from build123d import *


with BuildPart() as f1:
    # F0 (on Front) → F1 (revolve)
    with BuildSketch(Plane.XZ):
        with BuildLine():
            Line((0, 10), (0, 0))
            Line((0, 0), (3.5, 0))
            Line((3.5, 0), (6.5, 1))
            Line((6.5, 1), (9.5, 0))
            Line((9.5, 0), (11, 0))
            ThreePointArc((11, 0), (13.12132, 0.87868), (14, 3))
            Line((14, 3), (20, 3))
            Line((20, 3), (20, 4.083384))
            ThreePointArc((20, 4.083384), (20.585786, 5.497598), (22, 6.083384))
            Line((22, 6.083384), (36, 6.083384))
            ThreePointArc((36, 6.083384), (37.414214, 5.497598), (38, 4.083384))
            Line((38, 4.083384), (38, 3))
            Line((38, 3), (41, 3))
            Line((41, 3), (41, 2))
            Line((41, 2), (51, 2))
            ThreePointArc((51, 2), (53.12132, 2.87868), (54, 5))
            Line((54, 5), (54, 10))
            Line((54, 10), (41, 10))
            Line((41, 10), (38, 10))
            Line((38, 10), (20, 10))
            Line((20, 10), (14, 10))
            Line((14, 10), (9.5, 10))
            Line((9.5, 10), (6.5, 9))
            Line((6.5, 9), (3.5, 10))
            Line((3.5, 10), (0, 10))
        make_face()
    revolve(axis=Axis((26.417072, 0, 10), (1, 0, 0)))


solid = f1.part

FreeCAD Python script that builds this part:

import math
import FreeCAD as App
import Part
import Sketcher
from FreeCAD import Vector

doc = App.newDocument("Part")
body = doc.addObject("PartDesign::Body", "Body")

sketch1 = body.newObject("Sketcher::SketchObject", "Sketch")
sketch1.AttachmentSupport = (doc.getObject("XZ_Plane"), [""])
sketch1.MapMode = "FlatFace"
sketch1.addGeometry([
    Part.LineSegment(Vector(0, 10, 0), Vector(0, 0, 0)),
    Part.LineSegment(Vector(0, 0, 0), Vector(3.5, 0, 0)),
    Part.LineSegment(Vector(3.5, 0, 0), Vector(6.5, 1, 0)),
    Part.LineSegment(Vector(6.5, 1, 0), Vector(9.5, 0, 0)),
    Part.LineSegment(Vector(9.5, 0, 0), Vector(11, 0, 0)),
    Part.ArcOfCircle(Part.Circle(Vector(10.999999, 3.000001, 0), Vector(0, 0, 1), 3.000001), math.radians(-89.999978), math.radians(-0.000022)),
    Part.LineSegment(Vector(14, 3, 0), Vector(20, 3, 0)),
    Part.LineSegment(Vector(20, 3, 0), Vector(20, 4.083384, 0)),
    Part.ArcOfCircle(Part.Circle(Vector(21.999999, 4.083385, 0), Vector(0, 0, 1), 1.999999), math.radians(89.999957), math.radians(180.000043)),
    Part.LineSegment(Vector(22, 6.083384, 0), Vector(36, 6.083384, 0)),
    Part.ArcOfCircle(Part.Circle(Vector(36.000001, 4.083385, 0), Vector(0, 0, 1), 1.999999), math.radians(-0.000043), math.radians(90.000043)),
    Part.LineSegment(Vector(38, 4.083384, 0), Vector(38, 3, 0)),
    Part.LineSegment(Vector(38, 3, 0), Vector(41, 3, 0)),
    Part.LineSegment(Vector(41, 3, 0), Vector(41, 2, 0)),
    Part.LineSegment(Vector(41, 2, 0), Vector(51, 2, 0)),
    Part.ArcOfCircle(Part.Circle(Vector(50.999999, 5.000001, 0), Vector(0, 0, 1), 3.000001), math.radians(-89.999978), math.radians(-0.000022)),
    Part.LineSegment(Vector(54, 5, 0), Vector(54, 10, 0)),
    Part.LineSegment(Vector(54, 10, 0), Vector(9.5, 10, 0)),
    Part.LineSegment(Vector(9.5, 10, 0), Vector(6.5, 9, 0)),
    Part.LineSegment(Vector(6.5, 9, 0), Vector(3.5, 10, 0)),
    Part.LineSegment(Vector(3.5, 10, 0), Vector(0, 10, 0)),
], False)
sketch1.addGeometry(Part.LineSegment(Vector(0, 10, 0), Vector(54, 10, 0)), True)
sketch1.addConstraint([
    Sketcher.Constraint("Coincident", 0, 2, 1, 1),
    Sketcher.Constraint("Coincident", 1, 2, 2, 1),
    Sketcher.Constraint("Coincident", 2, 2, 3, 1),
    Sketcher.Constraint("Coincident", 3, 2, 4, 1),
    Sketcher.Constraint("Tangent", 4, 2, 5, 1),
    Sketcher.Constraint("Coincident", 5, 2, 6, 1),
    Sketcher.Constraint("Coincident", 6, 2, 7, 1),
    Sketcher.Constraint("Tangent", 7, 2, 8, 2),
    Sketcher.Constraint("Tangent", 8, 1, 9, 1),
    Sketcher.Constraint("Tangent", 9, 2, 10, 2),
    Sketcher.Constraint("Tangent", 10, 1, 11, 1),
    Sketcher.Constraint("Coincident", 11, 2, 12, 1),
    Sketcher.Constraint("Coincident", 12, 2, 13, 1),
    Sketcher.Constraint("Coincident", 13, 2, 14, 1),
    Sketcher.Constraint("Tangent", 14, 2, 15, 1),
    Sketcher.Constraint("Tangent", 15, 2, 16, 1),
    Sketcher.Constraint("Coincident", 16, 2, 17, 1),
    Sketcher.Constraint("Coincident", 17, 2, 18, 1),
    Sketcher.Constraint("Coincident", 18, 2, 19, 1),
    Sketcher.Constraint("Coincident", 19, 2, 20, 1),
    Sketcher.Constraint("Coincident", 20, 2, 0, 1),
    Sketcher.Constraint("Vertical", 0),
    Sketcher.Constraint("Horizontal", 1),
    Sketcher.Constraint("Horizontal", 4),
    Sketcher.Constraint("Horizontal", 6),
    Sketcher.Constraint("Vertical", 7),
    Sketcher.Constraint("Horizontal", 9),
    Sketcher.Constraint("Vertical", 11),
    Sketcher.Constraint("Horizontal", 12),
    Sketcher.Constraint("Vertical", 13),
    Sketcher.Constraint("Horizontal", 14),
    Sketcher.Constraint("Vertical", 16),
    Sketcher.Constraint("Horizontal", 17),
    Sketcher.Constraint("Horizontal", 20),
    Sketcher.Constraint("Horizontal", 21),
    Sketcher.Constraint("Coincident", 0, 2, -1, 1),
    Sketcher.Constraint("Coincident", 21, 1, 20, 2),
    Sketcher.Constraint("Coincident", 21, 2, 16, 2),
    Sketcher.Constraint("Equal", 8, 10),
    Sketcher.Constraint("Equal", 5, 15),
    Sketcher.Constraint("PointOnObject", 3, 2, -1),
    Sketcher.Constraint("Parallel", 2, 18),
    Sketcher.Constraint("Parallel", 3, 19),
    Sketcher.Constraint("Horizontal", 6, 2, 11, 2),
    Sketcher.Constraint("Vertical", 3, 2, 17, 2),
    Sketcher.Constraint("Vertical", 2, 2, 18, 2),
    Sketcher.Constraint("Vertical", 1, 2, 19, 2),
    Sketcher.Constraint("Equal", 14, 0),
    Sketcher.Constraint("Radius", 5, 3.000001),
    Sketcher.Constraint("Radius", 8, 1.999999),
    Sketcher.Constraint("DistanceX", 6, 1, 6, 2, 6.0),
    Sketcher.Constraint("DistanceX", 9, 1, 9, 2, 14.0),
    Sketcher.Constraint("DistanceX", 12, 1, 12, 2, 3.0),
    Sketcher.Constraint("DistanceX", 14, 1, 14, 2, 10.0),
    Sketcher.Constraint("DistanceX", 21, 1, 21, 2, 54.0),
    Sketcher.Constraint("DistanceY", 13, 2, 13, 1, 1.0),
    Sketcher.Constraint("DistanceY", 16, 1, 16, 2, 5.0),
    Sketcher.Constraint("DistanceX", 1, 1, 1, 2, 3.5),
    Sketcher.Constraint("DistanceX", 4, 1, 4, 2, 1.5),
    Sketcher.Constraint("DistanceY", -1, 1, 2, 2, 1.0),
    Sketcher.Constraint("DistanceY", 7, 1, 7, 2, 1.083384),
])
revolution = body.newObject("PartDesign::Revolution", "Revolution")
revolution.Profile = sketch1
revolution.ReferenceAxis = (sketch1, ["Axis0"])
revolution.Angle = 360

doc.recompute()
